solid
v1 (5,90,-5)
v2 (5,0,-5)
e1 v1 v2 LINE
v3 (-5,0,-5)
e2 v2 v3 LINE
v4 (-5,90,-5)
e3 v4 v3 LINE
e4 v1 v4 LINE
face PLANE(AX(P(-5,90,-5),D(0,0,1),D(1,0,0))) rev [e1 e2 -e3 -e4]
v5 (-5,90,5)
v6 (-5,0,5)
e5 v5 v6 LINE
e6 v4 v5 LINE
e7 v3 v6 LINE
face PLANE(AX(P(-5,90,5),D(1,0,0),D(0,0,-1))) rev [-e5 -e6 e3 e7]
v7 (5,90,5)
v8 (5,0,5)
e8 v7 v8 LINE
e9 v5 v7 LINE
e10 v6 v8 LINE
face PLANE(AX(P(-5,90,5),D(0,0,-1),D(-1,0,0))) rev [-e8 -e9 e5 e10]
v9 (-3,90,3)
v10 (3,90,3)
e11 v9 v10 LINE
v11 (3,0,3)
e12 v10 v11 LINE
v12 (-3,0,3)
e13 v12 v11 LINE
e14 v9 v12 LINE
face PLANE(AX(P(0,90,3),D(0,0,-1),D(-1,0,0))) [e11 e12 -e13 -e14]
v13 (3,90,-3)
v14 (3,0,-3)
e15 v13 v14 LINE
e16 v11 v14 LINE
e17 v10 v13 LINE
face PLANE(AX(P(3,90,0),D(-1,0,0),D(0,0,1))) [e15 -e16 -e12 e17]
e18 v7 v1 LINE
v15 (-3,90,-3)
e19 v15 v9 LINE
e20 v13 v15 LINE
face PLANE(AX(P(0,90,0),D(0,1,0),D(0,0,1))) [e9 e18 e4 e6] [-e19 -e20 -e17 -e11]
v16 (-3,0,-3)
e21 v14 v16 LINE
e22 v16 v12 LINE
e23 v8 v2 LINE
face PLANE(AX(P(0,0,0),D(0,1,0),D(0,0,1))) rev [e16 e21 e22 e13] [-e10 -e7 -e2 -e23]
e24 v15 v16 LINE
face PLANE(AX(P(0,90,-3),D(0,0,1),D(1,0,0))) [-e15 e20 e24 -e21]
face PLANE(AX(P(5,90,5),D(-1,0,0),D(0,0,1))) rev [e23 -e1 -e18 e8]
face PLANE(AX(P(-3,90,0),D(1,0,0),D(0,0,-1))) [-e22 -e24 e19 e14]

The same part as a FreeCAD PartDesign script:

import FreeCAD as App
import Part
import Sketcher

V = App.Vector
Q = App.Units.Quantity

doc = App.newDocument("Part")
body = doc.addObject("PartDesign::Body", "Body")

sketch1 = body.newObject("Sketcher::SketchObject", "Sketch")
sketch1.AttachmentSupport = (doc.getObject("XZ_Plane"), [""])
sketch1.MapMode = "FlatFace"
sketch1.addGeometry([
    Part.LineSegment(V(-5, -5, 0), V(-5, 5, 0)),
    Part.LineSegment(V(-5, 5, 0), V(5, 5, 0)),
    Part.LineSegment(V(5, 5, 0), V(5, -5, 0)),
    Part.LineSegment(V(5, -5, 0), V(-5, -5, 0)),
    Part.LineSegment(V(3, 3, 0), V(-3, 3, 0)),
    Part.LineSegment(V(-3, 3, 0), V(-3, -3, 0)),
    Part.LineSegment(V(-3, -3, 0), V(3, -3, 0)),
    Part.LineSegment(V(3, -3, 0), V(3, 3, 0)),
], False)
sketch1.addConstraint([
    Sketcher.Constraint("Coincident", 0, 2, 1, 1),
    Sketcher.Constraint("Coincident", 1, 2, 2, 1),
    Sketcher.Constraint("Coincident", 2, 2, 3, 1),
    Sketcher.Constraint("Coincident", 3, 2, 0, 1),
    Sketcher.Constraint("Coincident", 4, 2, 5, 1),
    Sketcher.Constraint("Coincident", 5, 2, 6, 1),
    Sketcher.Constraint("Coincident", 6, 2, 7, 1),
    Sketcher.Constraint("Coincident", 7, 2, 4, 1),
    Sketcher.Constraint("Vertical", 0),
    Sketcher.Constraint("Horizontal", 1),
    Sketcher.Constraint("Vertical", 2),
    Sketcher.Constraint("Horizontal", 3),
    Sketcher.Constraint("Horizontal", 4),
    Sketcher.Constraint("Vertical", 5),
    Sketcher.Constraint("Horizontal", 6),
    Sketcher.Constraint("Vertical", 7),
    Sketcher.Constraint("Symmetric", 0, 2, 2, 2, -1, 1),
    Sketcher.Constraint("Symmetric", 4, 2, 6, 2, -1, 1),
    Sketcher.Constraint("Equal", 3, 0),
    Sketcher.Constraint("Equal", 6, 5),
    Sketcher.Constraint("DistanceX", 1, 1, 1, 2, Q("10 mm")),
    Sketcher.Constraint("DistanceX", 4, 2, 4, 1, Q("6 mm")),
])
pad1 = body.newObject("PartDesign::Pad", "Pad")
pad1.Profile = sketch1
pad1.Length = 90
pad1.Reversed = True

doc.recompute()
